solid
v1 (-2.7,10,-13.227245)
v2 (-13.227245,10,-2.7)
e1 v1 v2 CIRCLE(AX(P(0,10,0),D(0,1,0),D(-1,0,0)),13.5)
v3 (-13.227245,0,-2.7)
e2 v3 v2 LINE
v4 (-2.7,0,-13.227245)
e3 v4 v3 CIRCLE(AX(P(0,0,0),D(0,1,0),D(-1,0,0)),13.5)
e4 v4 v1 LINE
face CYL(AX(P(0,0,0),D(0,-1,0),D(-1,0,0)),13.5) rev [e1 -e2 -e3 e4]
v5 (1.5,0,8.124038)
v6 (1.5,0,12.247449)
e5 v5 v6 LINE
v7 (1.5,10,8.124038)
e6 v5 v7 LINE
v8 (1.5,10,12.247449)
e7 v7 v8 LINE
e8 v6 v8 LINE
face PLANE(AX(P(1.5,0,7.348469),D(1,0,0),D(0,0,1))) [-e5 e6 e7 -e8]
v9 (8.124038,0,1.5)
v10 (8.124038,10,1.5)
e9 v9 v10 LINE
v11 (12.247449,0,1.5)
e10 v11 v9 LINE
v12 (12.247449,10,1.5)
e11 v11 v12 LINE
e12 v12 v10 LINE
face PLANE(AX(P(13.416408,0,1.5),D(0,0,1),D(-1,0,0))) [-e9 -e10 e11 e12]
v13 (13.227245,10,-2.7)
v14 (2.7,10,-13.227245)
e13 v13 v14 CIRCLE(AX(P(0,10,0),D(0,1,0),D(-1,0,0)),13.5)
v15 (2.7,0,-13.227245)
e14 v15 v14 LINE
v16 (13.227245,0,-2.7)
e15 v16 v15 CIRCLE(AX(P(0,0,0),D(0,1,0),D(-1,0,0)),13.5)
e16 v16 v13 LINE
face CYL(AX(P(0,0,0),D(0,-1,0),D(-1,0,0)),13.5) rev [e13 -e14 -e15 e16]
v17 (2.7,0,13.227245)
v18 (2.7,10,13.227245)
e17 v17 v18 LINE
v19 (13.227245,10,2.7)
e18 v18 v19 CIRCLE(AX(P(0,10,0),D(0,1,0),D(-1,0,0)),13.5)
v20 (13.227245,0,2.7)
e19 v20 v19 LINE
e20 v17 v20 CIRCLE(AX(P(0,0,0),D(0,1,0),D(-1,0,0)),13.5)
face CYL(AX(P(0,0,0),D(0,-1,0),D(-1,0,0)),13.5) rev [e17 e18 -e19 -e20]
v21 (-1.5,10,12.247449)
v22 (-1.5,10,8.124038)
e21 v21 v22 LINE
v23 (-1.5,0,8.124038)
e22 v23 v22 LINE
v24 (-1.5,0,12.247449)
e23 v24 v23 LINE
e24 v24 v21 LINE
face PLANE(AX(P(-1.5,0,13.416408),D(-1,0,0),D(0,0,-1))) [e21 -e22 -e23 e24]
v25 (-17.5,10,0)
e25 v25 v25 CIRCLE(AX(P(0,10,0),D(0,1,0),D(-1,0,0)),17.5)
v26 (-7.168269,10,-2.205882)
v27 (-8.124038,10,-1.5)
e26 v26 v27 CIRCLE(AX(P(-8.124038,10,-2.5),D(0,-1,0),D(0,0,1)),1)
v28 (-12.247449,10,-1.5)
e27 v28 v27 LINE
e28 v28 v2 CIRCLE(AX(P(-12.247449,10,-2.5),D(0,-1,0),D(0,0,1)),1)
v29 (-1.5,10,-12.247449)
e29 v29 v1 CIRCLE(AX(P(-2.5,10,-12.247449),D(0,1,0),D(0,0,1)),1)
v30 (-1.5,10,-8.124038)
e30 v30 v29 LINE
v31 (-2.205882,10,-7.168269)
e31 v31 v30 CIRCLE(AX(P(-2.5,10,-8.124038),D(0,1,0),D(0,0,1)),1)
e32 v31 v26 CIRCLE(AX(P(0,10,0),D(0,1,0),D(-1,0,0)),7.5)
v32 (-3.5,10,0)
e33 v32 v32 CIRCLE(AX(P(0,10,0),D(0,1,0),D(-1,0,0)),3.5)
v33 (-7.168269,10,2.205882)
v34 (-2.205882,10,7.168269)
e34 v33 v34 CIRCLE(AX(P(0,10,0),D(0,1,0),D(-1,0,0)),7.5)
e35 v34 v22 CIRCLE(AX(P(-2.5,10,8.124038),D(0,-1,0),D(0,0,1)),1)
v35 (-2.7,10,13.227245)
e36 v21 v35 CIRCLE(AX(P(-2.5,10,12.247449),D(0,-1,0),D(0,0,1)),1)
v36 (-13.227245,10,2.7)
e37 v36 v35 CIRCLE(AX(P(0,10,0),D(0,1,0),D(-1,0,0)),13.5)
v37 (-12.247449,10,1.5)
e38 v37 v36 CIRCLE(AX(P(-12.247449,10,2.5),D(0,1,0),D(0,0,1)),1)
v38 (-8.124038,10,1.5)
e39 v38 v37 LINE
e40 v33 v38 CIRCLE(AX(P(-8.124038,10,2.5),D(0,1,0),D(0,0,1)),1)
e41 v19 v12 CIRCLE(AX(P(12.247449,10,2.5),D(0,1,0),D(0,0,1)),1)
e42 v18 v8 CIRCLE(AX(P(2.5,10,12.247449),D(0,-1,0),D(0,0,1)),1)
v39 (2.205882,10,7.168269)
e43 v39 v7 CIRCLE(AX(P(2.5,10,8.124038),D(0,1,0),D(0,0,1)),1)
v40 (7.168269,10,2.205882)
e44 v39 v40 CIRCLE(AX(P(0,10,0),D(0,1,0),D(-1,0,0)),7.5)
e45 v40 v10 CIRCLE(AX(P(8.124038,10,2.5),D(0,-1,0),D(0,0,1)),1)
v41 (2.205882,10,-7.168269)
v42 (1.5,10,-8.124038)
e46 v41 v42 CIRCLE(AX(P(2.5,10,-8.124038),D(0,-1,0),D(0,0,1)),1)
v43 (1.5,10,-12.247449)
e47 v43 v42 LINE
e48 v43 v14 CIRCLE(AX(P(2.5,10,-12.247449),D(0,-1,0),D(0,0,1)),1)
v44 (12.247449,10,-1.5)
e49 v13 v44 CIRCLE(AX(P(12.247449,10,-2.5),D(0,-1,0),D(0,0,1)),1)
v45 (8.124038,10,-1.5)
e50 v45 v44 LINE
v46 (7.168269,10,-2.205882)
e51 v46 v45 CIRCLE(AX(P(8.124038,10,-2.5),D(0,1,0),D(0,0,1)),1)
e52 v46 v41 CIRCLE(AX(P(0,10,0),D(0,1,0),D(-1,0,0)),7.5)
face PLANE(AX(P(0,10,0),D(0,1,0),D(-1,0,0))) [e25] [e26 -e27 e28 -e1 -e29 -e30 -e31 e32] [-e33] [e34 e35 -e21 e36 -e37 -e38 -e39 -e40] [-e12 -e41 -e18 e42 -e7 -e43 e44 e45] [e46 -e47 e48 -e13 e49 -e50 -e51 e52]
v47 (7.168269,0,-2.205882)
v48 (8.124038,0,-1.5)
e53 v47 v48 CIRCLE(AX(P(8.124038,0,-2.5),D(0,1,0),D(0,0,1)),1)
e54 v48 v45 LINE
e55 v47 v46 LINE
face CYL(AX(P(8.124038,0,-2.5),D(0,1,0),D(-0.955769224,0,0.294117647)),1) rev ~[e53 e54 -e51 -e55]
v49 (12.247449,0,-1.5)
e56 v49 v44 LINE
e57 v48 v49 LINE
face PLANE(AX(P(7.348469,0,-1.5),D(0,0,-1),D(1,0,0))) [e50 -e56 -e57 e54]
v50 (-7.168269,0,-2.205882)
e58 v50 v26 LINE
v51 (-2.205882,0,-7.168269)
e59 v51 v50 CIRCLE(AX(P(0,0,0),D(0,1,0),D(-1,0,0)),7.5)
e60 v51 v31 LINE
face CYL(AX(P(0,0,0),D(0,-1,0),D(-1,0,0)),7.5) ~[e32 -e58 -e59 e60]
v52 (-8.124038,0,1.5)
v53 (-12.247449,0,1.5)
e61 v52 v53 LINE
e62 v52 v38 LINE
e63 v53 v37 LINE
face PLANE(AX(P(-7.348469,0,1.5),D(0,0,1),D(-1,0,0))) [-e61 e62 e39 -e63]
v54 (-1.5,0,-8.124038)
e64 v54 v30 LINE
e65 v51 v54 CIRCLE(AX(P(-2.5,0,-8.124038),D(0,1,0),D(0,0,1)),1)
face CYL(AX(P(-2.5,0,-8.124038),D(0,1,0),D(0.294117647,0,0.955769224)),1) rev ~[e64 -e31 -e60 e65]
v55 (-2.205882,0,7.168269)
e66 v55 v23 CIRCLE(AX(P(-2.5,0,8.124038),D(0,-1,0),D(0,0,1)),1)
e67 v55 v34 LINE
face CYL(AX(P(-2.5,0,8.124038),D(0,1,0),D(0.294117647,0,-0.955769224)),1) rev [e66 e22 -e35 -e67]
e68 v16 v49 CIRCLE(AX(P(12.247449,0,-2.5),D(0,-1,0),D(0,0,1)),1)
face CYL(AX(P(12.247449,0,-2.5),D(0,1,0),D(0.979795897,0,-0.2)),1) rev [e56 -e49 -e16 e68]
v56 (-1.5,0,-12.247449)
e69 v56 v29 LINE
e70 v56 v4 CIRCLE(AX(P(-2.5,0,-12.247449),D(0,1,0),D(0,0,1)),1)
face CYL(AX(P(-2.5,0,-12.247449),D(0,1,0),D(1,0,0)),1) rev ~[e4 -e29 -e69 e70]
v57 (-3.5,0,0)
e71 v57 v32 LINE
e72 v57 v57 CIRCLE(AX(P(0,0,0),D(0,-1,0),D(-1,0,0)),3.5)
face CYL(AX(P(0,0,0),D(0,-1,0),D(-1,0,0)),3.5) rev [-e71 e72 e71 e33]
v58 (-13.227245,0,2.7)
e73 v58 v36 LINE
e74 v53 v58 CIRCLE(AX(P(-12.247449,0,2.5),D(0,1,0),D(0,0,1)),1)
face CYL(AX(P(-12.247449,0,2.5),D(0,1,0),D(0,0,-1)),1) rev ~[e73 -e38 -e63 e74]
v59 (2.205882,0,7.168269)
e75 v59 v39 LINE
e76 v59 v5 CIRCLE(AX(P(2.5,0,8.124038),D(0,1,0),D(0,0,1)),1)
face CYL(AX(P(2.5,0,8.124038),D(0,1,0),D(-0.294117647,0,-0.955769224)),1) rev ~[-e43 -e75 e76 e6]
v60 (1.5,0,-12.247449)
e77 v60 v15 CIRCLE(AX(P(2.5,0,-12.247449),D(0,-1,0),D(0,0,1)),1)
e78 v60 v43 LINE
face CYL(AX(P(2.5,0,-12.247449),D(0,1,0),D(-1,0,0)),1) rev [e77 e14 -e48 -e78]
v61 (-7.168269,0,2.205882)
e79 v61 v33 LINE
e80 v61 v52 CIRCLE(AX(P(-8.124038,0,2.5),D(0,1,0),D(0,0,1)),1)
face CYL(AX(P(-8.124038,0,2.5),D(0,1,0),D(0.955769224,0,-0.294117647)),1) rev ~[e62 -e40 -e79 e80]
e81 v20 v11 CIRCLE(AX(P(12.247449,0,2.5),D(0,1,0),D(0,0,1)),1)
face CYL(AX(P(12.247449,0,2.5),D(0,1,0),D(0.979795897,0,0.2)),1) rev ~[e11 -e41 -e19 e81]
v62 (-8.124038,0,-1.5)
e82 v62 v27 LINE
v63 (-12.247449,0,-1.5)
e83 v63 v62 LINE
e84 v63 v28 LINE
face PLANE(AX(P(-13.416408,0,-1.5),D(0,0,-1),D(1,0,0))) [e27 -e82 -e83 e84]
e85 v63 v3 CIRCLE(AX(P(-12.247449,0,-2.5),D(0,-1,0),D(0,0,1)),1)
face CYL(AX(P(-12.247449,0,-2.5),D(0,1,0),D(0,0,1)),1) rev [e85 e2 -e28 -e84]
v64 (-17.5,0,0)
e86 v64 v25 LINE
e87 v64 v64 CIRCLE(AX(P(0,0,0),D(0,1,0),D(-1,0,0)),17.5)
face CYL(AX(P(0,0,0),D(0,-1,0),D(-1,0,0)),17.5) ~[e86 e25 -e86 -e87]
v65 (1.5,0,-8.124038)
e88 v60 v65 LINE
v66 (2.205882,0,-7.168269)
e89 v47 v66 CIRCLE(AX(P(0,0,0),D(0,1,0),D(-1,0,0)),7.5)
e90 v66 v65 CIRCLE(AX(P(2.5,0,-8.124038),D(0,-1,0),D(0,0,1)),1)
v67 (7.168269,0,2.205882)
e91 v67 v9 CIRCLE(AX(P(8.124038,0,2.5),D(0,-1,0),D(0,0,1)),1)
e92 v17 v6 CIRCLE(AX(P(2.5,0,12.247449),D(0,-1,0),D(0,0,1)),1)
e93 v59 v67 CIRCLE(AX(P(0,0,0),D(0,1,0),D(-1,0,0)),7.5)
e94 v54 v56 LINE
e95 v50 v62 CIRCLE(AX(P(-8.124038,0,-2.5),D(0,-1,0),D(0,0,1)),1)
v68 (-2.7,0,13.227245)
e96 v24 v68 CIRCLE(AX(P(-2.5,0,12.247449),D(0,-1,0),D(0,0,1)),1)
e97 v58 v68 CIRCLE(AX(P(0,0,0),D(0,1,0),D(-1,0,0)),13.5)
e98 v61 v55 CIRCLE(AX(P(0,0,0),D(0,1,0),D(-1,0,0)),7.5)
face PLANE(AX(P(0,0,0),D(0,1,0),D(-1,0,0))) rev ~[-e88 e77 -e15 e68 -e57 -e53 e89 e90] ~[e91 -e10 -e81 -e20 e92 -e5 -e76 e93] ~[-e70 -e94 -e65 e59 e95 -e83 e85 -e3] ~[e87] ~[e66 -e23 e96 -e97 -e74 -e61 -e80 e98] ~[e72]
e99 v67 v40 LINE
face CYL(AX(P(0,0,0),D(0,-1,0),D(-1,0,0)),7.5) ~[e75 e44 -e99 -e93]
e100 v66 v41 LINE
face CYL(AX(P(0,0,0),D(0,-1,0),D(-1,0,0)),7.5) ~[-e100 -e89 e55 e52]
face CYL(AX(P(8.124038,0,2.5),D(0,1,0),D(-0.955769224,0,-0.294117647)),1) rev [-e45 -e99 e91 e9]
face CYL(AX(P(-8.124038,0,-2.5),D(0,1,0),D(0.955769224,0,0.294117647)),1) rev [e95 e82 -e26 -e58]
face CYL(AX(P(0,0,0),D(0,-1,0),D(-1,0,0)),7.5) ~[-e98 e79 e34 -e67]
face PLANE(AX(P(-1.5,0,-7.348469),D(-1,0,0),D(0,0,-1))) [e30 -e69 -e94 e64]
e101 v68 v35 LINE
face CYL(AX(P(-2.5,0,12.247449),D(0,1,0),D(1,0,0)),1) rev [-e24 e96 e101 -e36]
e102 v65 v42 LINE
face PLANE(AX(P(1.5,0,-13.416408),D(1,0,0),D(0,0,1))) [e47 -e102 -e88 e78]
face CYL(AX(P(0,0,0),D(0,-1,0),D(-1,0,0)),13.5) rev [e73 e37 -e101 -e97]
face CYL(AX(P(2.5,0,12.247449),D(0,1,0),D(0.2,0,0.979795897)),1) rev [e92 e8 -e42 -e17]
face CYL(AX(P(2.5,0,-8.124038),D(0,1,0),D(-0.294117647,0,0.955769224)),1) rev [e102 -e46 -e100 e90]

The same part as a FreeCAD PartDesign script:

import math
import FreeCAD as App
import Part
import Sketcher


def edges_at(feature, points):
    """Names of the edges that pass closest to the given points."""
    edges = feature.Shape.Edges
    near = lambda p: min(range(len(edges)), key=lambda i: edges[i].distToShape(Part.Vertex(*p))[0])
    return sorted({f"Edge{near(p) + 1}" for p in points})

doc = App.newDocument("Part")
params = doc.addObject("Spreadsheet::Sheet", "Params")
for row, (alias, value) in enumerate([
    ("sketch1_diameter", "35 mm"),
    ("sketch1_diameter2", "7 mm"),
    ("sketch1_radius", "13.5 mm"),
    ("sketch1_radius2", "7.5 mm"),
    ("pad1_length", "10 mm"),
    ("fillet_radius", "1 mm"),
], start=1):
    params.set(f"A{row}", alias)
    params.set(f"B{row}", "=" + value)
    params.setAlias(f"B{row}", alias)

body = doc.addObject("PartDesign::Body", "Body")

sketch1 = body.newObject("Sketcher::SketchObject", "Sketch")
sketch1.AttachmentSupport = (doc.getObject("XZ_Plane"), [""])
sketch1.MapMode = "FlatFace"
sketch1.addGeometry(Part.Circle(App.Vector(0, 0, 0), App.Vector(0, 0, 1), 17.5), False)
sketch1.addGeometry(Part.Circle(App.Vector(0, 0, 0), App.Vector(0, 0, 1), 3.5), False)
sketch1.addGeometry(Part.LineSegment(App.Vector(-7.3, -1.5, 0), App.Vector(-13.4, -1.5, 0)), False)
sketch1.addGeometry(Part.ArcOfCircle(Part.Circle(App.Vector(0, 0, 0), App.Vector(0, 0, 1), 13.5), math.radians(-174), math.radians(-96)), False)
sketch1.addGeometry(Part.LineSegment(App.Vector(-1.5, -13.4, 0), App.Vector(-1.5, -7.3, 0)), False)
sketch1.addGeometry(Part.ArcOfCircle(Part.Circle(App.Vector(0, 0, 0), App.Vector(0, 0, 1), 7.5), math.radians(-168), math.radians(-102)), False)
sketch1.addGeometry(Part.ArcOfCircle(Part.Circle(App.Vector(0, 0, 0), App.Vector(0, 0, 1), 7.5), math.radians(102), math.radians(168)), False)
sketch1.addGeometry(Part.LineSegment(App.Vector(-1.5, 7.3, 0), App.Vector(-1.5, 13.4, 0)), False)
sketch1.addGeometry(Part.ArcOfCircle(Part.Circle(App.Vector(0, 0, 0), App.Vector(0, 0, 1), 13.5), math.radians(96), math.radians(174)), False)
sketch1.addGeometry(Part.LineSegment(App.Vector(-13.4, 1.5, 0), App.Vector(-7.3, 1.5, 0)), False)
sketch1.addGeometry(Part.ArcOfCircle(Part.Circle(App.Vector(0, 0, 0), App.Vector(0, 0, 1), 13.5), math.radians(6), math.radians(84)), False)
sketch1.addGeometry(Part.LineSegment(App.Vector(1.5, 13.4, 0), App.Vector(1.5, 7.3, 0)), False)
sketch1.addGeometry(Part.ArcOfCircle(Part.Circle(App.Vector(0, 0, 0), App.Vector(0, 0, 1), 7.5), math.radians(12), math.radians(78)), False)
sketch1.addGeometry(Part.LineSegment(App.Vector(7.3, 1.5, 0), App.Vector(13.4, 1.5, 0)), False)
sketch1.addGeometry(Part.ArcOfCircle(Part.Circle(App.Vector(0, 0, 0), App.Vector(0, 0, 1), 13.5), math.radians(-84), math.radians(-6)), False)
sketch1.addGeometry(Part.LineSegment(App.Vector(13.4, -1.5, 0), App.Vector(7.3, -1.5, 0)), False)
sketch1.addGeometry(Part.ArcOfCircle(Part.Circle(App.Vector(0, 0, 0), App.Vector(0, 0, 1), 7.5), math.radians(-78), math.radians(-12)), False)
sketch1.addGeometry(Part.LineSegment(App.Vector(1.5, -7.3, 0), App.Vector(1.5, -13.4, 0)), False)
sketch1.addConstraint(Sketcher.Constraint("Coincident", 2, 2, 3, 1))
sketch1.addConstraint(Sketcher.Constraint("Coincident", 3, 2, 4, 1))
sketch1.addConstraint(Sketcher.Constraint("Coincident", 4, 2, 5, 2))
sketch1.addConstraint(Sketcher.Constraint("Coincident", 5, 1, 2, 1))
sketch1.addConstraint(Sketcher.Constraint("Coincident", 6, 1, 7, 1))
sketch1.addConstraint(Sketcher.Constraint("Coincident", 7, 2, 8, 1))
sketch1.addConstraint(Sketcher.Constraint("Coincident", 8, 2, 9, 1))
sketch1.addConstraint(Sketcher.Constraint("Coincident", 9, 2, 6, 2))
sketch1.addConstraint(Sketcher.Constraint("Coincident", 10, 2, 11, 1))
sketch1.addConstraint(Sketcher.Constraint("Coincident", 11, 2, 12, 2))
sketch1.addConstraint(Sketcher.Constraint("Coincident", 12, 1, 13, 1))
sketch1.addConstraint(Sketcher.Constraint("Coincident", 13, 2, 10, 1))
sketch1.addConstraint(Sketcher.Constraint("Coincident", 14, 2, 15, 1))
sketch1.addConstraint(Sketcher.Constraint("Coincident", 15, 2, 16, 2))
sketch1.addConstraint(Sketcher.Constraint("Coincident", 16, 1, 17, 1))
sketch1.addConstraint(Sketcher.Constraint("Coincident", 17, 2, 14, 1))
sketch1.addConstraint(Sketcher.Constraint("Horizontal", 2))
sketch1.addConstraint(Sketcher.Constraint("Vertical", 4))
sketch1.addConstraint(Sketcher.Constraint("Vertical", 7))
sketch1.addConstraint(Sketcher.Constraint("Horizontal", 9))
sketch1.addConstraint(Sketcher.Constraint("Vertical", 11))
sketch1.addConstraint(Sketcher.Constraint("Horizontal", 13))
sketch1.addConstraint(Sketcher.Constraint("Horizontal", 15))
sketch1.addConstraint(Sketcher.Constraint("Vertical", 17))
sketch1.addConstraint(Sketcher.Constraint("Coincident", 0, 3, -1, 1))
sketch1.addConstraint(Sketcher.Constraint("Coincident", 1, 3, -1, 1))
sketch1.addConstraint(Sketcher.Constraint("Coincident", 3, 3, -1, 1))
sketch1.addConstraint(Sketcher.Constraint("Coincident", 5, 3, -1, 1))
sketch1.addConstraint(Sketcher.Constraint("Coincident", 6, 3, -1, 1))
sketch1.addConstraint(Sketcher.Constraint("Coincident", 8, 3, -1, 1))
sketch1.addConstraint(Sketcher.Constraint("Coincident", 10, 3, -1, 1))
sketch1.addConstraint(Sketcher.Constraint("Coincident", 12, 3, -1, 1))
sketch1.addConstraint(Sketcher.Constraint("Coincident", 14, 3, -1, 1))
sketch1.addConstraint(Sketcher.Constraint("Coincident", 16, 3, -1, 1))
sketch1.addConstraint(Sketcher.Constraint("Equal", 5, 6))
sketch1.addConstraint(Sketcher.Constraint("Equal", 3, 8))
sketch1.addConstraint(Sketcher.Constraint("Equal", 8, 10))
sketch1.addConstraint(Sketcher.Constraint("Equal", 6, 12))
sketch1.addConstraint(Sketcher.Constraint("Equal", 10, 14))
sketch1.addConstraint(Sketcher.Constraint("Equal", 12, 16))
sketch1.addConstraint(Sketcher.Constraint("Horizontal", 7, 2, 10, 2))
sketch1.addConstraint(Sketcher.Constraint("Horizontal", 9, 2, 12, 1))
sketch1.addConstraint(Sketcher.Constraint("Horizontal", 5, 1, 14, 2))
sketch1.addConstraint(Sketcher.Constraint("Horizontal", 4, 2, 16, 1))
sketch1.addConstraint(Sketcher.Constraint("Vertical", 4, 2, 6, 1))
sketch1.addConstraint(Sketcher.Constraint("Vertical", 2, 2, 8, 2))
sketch1.addConstraint(Sketcher.Constraint("Equal", 15, 4))
sketch1.addConstraint(Sketcher.Constraint("Diameter", 0, 35.0))
sketch1.addConstraint(Sketcher.Constraint("Diameter", 1, 7.0))
sketch1.addConstraint(Sketcher.Constraint("DistanceY", 2, 2, 8, 2, 3.0))
sketch1.addConstraint(Sketcher.Constraint("Radius", 3, 13.5))
sketch1.addConstraint(Sketcher.Constraint("Radius", 5, 7.5))
sketch1.setExpression("Constraints[47]", "Params.sketch1_diameter")
sketch1.setExpression("Constraints[48]", "Params.sketch1_diameter2")
sketch1.setExpression("Constraints[50]", "Params.sketch1_radius")
sketch1.setExpression("Constraints[51]", "Params.sketch1_radius2")
pad1 = body.newObject("PartDesign::Pad", "Pad")
pad1.Profile = sketch1
pad1.setExpression("Length", "Params.pad1_length")
pad1.Reversed = True
doc.recompute()

fillet = body.newObject("PartDesign::Fillet", "Fillet")
fillet.Base = (pad1, edges_at(pad1, [
    (13.416, 5, -1.5),
    (1.5, 5, -13.416),
    (1.5, 5, -7.348),
    (-1.5, 5, -7.348),
    (7.348, 5, -1.5),
    (-7.348, 5, -1.5),
    (-7.348, 5, 1.5),
    (-1.5, 5, 7.348),
    (1.5, 5, 7.348),
    (7.348, 5, 1.5),
    (13.416, 5, 1.5),
    (1.5, 5, 13.416),
    (-1.5, 5, 13.416),
    (-13.416, 5, 1.5),
    (-13.416, 5, -1.5),
    (-1.5, 5, -13.416),
]))
fillet.setExpression("Radius", "Params.fillet_radius")

doc.recompute()
